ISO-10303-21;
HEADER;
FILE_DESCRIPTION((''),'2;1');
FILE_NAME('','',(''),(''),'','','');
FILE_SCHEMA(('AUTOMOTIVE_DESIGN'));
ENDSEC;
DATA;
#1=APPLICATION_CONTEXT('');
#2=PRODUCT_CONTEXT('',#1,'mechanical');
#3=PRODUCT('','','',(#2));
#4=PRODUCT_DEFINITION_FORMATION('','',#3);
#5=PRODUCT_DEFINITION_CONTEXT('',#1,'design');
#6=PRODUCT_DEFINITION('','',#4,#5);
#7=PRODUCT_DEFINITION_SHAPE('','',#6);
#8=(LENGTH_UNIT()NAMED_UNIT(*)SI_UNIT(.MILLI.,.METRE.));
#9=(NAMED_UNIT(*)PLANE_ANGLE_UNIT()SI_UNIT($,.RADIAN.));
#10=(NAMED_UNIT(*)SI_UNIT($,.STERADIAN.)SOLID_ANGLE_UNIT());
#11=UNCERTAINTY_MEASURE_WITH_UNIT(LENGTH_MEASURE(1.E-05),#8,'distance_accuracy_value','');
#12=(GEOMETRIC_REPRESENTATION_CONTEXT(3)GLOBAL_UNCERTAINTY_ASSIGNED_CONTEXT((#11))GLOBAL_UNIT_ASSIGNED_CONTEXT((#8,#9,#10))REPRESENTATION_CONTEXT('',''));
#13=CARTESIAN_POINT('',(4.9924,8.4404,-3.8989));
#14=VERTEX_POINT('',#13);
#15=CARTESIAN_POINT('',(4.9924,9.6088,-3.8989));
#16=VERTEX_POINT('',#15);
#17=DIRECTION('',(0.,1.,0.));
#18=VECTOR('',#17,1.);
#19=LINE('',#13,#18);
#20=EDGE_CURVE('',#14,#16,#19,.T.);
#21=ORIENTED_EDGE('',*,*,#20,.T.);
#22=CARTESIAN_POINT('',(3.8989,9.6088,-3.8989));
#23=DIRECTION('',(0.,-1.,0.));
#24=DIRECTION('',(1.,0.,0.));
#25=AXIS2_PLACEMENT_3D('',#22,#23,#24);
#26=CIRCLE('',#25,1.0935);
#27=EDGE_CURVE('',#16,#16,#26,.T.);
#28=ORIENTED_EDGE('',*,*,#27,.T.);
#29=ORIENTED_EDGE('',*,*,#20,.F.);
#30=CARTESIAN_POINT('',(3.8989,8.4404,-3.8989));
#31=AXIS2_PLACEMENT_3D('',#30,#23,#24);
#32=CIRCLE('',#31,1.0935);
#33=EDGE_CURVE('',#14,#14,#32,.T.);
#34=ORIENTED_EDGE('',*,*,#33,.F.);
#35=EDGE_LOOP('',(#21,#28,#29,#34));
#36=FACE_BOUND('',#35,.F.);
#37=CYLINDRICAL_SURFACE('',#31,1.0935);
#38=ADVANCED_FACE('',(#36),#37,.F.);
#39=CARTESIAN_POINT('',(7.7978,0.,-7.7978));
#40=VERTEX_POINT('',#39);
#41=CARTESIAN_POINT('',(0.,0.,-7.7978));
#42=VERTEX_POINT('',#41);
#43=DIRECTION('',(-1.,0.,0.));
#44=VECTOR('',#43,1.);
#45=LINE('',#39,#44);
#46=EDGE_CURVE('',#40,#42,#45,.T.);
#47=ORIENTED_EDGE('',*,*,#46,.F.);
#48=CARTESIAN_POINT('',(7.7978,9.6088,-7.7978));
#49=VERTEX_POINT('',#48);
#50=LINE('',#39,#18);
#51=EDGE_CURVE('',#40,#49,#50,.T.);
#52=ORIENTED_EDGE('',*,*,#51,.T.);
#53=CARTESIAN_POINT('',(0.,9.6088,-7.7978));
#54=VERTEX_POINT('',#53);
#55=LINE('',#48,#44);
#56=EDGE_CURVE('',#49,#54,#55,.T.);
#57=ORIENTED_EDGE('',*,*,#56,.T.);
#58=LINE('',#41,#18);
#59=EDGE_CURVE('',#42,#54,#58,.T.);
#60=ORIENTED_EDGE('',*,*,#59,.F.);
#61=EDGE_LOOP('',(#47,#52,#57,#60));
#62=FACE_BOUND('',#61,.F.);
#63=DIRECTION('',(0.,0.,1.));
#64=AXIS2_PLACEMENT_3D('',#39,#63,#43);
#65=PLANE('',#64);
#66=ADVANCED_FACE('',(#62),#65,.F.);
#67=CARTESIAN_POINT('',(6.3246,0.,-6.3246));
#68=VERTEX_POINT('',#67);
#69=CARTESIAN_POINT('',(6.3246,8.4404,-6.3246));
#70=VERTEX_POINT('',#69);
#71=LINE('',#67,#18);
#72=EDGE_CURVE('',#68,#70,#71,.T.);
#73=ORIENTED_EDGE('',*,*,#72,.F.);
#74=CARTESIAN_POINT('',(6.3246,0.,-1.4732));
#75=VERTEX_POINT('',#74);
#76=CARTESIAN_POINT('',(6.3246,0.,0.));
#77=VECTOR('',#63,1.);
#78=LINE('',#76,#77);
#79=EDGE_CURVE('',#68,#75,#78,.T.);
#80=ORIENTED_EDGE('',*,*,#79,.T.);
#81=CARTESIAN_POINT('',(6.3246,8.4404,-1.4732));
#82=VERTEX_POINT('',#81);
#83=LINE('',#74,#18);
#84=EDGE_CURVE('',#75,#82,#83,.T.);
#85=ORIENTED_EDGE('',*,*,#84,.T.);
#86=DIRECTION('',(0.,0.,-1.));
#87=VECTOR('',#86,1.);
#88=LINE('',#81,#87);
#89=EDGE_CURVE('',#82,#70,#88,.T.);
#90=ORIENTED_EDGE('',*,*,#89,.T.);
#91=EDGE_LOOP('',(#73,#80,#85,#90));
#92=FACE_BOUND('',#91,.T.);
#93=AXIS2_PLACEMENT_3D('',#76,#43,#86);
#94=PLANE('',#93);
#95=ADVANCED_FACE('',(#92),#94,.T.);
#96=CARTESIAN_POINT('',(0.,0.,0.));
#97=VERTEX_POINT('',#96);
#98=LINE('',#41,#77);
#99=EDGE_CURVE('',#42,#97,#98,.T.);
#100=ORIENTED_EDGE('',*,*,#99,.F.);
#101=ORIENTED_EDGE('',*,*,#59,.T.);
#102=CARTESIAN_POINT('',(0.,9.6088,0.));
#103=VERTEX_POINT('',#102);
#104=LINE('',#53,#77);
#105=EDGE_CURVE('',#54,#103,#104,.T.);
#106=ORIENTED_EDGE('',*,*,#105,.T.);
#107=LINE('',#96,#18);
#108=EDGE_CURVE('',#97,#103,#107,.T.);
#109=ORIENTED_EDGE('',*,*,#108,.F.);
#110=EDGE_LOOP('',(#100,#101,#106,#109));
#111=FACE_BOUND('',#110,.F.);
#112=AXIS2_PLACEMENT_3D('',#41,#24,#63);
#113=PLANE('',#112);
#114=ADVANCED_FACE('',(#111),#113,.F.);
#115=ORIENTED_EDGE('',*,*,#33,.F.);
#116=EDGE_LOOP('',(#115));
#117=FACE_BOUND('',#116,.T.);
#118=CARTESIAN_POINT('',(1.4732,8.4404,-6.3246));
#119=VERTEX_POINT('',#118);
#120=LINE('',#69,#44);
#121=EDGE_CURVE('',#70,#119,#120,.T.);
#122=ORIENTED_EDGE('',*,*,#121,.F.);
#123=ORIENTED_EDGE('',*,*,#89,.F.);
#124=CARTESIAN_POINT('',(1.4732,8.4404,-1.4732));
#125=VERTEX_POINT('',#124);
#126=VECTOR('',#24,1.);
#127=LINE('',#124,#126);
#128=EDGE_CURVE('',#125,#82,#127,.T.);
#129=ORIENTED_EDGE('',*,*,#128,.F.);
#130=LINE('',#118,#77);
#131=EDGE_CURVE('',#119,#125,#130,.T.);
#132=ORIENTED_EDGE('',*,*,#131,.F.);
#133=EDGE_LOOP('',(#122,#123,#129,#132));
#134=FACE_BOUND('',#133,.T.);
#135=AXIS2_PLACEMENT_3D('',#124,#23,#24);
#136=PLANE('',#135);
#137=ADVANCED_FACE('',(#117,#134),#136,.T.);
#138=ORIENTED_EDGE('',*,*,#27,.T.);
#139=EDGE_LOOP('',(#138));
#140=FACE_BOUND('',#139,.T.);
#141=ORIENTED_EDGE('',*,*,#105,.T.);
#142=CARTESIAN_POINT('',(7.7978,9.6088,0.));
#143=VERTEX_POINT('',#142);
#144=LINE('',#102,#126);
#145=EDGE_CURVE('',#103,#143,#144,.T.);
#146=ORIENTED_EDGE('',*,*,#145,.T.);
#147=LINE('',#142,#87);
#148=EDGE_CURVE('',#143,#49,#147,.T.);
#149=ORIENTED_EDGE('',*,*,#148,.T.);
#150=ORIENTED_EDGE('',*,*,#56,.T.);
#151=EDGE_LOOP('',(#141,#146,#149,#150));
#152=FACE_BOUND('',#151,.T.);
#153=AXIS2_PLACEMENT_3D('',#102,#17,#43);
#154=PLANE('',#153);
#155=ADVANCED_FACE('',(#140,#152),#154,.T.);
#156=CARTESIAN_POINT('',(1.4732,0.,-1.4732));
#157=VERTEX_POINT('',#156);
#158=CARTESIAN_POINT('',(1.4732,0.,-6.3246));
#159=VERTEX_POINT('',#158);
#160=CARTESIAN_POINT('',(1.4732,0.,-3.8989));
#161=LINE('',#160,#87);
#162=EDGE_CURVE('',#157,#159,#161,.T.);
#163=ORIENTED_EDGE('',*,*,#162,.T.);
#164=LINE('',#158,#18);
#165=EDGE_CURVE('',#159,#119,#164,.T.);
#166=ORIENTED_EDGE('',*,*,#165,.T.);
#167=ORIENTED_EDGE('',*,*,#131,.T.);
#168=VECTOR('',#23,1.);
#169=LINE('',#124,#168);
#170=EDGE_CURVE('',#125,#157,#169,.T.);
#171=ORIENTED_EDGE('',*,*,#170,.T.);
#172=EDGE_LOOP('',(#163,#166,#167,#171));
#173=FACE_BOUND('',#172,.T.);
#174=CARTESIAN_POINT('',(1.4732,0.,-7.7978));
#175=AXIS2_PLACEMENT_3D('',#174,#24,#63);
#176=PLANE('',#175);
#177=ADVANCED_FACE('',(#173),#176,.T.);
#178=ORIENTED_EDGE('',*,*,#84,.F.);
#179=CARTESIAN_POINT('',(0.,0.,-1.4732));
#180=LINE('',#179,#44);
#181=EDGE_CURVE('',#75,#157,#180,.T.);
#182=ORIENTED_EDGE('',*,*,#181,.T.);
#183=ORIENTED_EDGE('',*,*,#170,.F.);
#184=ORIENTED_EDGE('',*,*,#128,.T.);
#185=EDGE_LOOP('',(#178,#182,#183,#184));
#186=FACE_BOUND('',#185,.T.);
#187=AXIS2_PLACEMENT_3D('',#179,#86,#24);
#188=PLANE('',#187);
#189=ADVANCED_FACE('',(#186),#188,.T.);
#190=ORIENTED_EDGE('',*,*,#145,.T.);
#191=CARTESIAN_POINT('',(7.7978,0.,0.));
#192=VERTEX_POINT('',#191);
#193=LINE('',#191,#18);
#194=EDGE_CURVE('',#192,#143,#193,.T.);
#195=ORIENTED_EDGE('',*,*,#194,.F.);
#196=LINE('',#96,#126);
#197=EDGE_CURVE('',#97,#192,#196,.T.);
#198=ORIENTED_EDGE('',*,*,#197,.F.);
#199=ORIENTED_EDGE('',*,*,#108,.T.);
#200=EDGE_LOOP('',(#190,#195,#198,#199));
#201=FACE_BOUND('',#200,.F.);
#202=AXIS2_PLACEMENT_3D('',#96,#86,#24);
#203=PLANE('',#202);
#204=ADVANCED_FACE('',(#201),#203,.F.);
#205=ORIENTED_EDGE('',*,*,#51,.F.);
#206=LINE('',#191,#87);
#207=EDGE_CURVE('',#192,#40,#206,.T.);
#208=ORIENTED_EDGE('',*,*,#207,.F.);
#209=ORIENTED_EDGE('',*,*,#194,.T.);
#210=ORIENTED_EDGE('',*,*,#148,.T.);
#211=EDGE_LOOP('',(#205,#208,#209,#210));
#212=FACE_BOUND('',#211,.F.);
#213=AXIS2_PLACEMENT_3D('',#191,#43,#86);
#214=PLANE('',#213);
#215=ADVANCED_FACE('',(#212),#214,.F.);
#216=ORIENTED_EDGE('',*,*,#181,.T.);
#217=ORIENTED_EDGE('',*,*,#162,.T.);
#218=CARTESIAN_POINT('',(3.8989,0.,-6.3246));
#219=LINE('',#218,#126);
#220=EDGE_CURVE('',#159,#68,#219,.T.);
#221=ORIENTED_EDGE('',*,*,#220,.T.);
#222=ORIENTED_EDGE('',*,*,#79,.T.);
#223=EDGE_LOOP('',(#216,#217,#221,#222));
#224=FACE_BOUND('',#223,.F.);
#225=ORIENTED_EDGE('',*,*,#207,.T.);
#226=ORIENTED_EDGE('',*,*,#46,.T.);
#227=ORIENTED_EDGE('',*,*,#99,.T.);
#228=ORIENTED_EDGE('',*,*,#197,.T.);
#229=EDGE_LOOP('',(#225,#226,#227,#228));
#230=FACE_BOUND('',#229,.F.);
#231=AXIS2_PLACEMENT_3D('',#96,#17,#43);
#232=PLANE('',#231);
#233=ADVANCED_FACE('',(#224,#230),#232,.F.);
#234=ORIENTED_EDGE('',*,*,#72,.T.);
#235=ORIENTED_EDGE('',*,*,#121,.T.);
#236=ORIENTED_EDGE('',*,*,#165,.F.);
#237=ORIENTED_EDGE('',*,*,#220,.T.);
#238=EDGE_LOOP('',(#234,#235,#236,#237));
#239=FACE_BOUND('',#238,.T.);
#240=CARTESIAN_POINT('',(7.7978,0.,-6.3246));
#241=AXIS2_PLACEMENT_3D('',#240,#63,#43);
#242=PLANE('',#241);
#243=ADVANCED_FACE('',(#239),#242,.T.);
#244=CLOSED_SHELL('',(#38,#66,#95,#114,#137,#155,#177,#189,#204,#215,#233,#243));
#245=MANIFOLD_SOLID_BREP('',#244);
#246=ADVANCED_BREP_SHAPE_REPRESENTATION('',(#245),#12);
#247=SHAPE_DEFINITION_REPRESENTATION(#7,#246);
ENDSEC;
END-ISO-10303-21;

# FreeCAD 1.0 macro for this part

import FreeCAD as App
import Part
import Sketcher
from FreeCAD import Vector
Q = App.Units.Quantity


def faces_at(feature, points):
    """Names of the faces that lie closest to the given points."""
    faces = feature.Shape.Faces
    near = lambda p: min(range(len(faces)), key=lambda i: faces[i].distToShape(Part.Vertex(*p))[0])
    return sorted({f"Face{near(p) + 1}" for p in points})

doc = App.newDocument("Part")
body = doc.addObject("PartDesign::Body", "Body")

sketch1 = body.newObject("Sketcher::SketchObject", "Sketch")
sketch1.AttachmentSupport = (doc.getObject("XZ_Plane"), [""])
sketch1.MapMode = "FlatFace"
sketch1.addGeometry([
    Part.LineSegment(Vector(0, -8, 0), Vector(0, 0, 0)),
    Part.LineSegment(Vector(0, 0, 0), Vector(8, 0, 0)),
    Part.LineSegment(Vector(8, 0, 0), Vector(8, -8, 0)),
    Part.LineSegment(Vector(8, -8, 0), Vector(0, -8, 0)),
], False)
sketch1.addConstraint([
    Sketcher.Constraint("Coincident", 0, 2, 1, 1),
    Sketcher.Constraint("Coincident", 1, 2, 2, 1),
    Sketcher.Constraint("Coincident", 2, 2, 3, 1),
    Sketcher.Constraint("Coincident", 3, 2, 0, 1),
    Sketcher.Constraint("Vertical", 0),
    Sketcher.Constraint("Horizontal", 1),
    Sketcher.Constraint("Vertical", 2),
    Sketcher.Constraint("Horizontal", 3),
    Sketcher.Constraint("Coincident", 0, 2, -1, 1),
    Sketcher.Constraint("Equal", 3, 0),
    Sketcher.Constraint("DistanceX", 1, 1, 1, 2, Q("0.307 in")),
])
pad1 = body.newObject("PartDesign::Pad", "Pad")
pad1.Profile = sketch1
pad1.Length = Q("0.3782992 in")
pad1.Reversed = True
doc.recompute()

thickness = body.newObject("PartDesign::Thickness", "Thickness")
thickness.Base = (pad1, faces_at(pad1, [(5.199, 0, -2.599)]))
thickness.Value = Q("0.058 in")
thickness.Reversed = True
thickness.Join = "Intersection"

sketch2 = body.newObject("Sketcher::SketchObject", "Sketch001")
sketch2.AttachmentSupport = (doc.getObject("XZ_Plane"), [""])
sketch2.MapMode = "FlatFace"
sketch2.AttachmentOffset = App.Placement(Vector(0, 0, -0.3202992 * 25.4), App.Rotation())
sketch2.addGeometry([
    Part.LineSegment(Vector(1.5, -1.5, 0), Vector(1.5, -6.3, 0)),
    Part.LineSegment(Vector(1.5, -6.3, 0), Vector(6.3, -6.3, 0)),
    Part.LineSegment(Vector(6.3, -6.3, 0), Vector(6.3, -1.5, 0)),
    Part.LineSegment(Vector(6.3, -1.5, 0), Vector(1.5, -1.5, 0)),
], False)
sketch2.addConstraint([
    Sketcher.Constraint("Coincident", 0, 2, 1, 1),
    Sketcher.Constraint("Coincident", 1, 2, 2, 1),
    Sketcher.Constraint("Coincident", 2, 2, 3, 1),
    Sketcher.Constraint("Coincident", 3, 2, 0, 1),
    Sketcher.Constraint("Vertical", 0),
    Sketcher.Constraint("Horizontal", 1),
    Sketcher.Constraint("Vertical", 2),
    Sketcher.Constraint("Horizontal", 3),
    Sketcher.Constraint("Equal", 3, 0),
    Sketcher.Constraint("DistanceX", 1, 1, 1, 2, Q("0.191 in")),
    Sketcher.Constraint("DistanceX", -1, 1, 0, 2, Q("0.058 in")),
    Sketcher.Constraint("DistanceY", 0, 2, -1, 1, Q("0.249 in")),
])
pocket1 = body.newObject("PartDesign::Pocket", "Pocket")
pocket1.Profile = sketch2
pocket1.Length = Q("0.012 in")

sketch3 = body.newObject("Sketcher::SketchObject", "Sketch002")
sketch3.AttachmentSupport = (doc.getObject("XZ_Plane"), [""])
sketch3.MapMode = "FlatFace"
sketch3.AttachmentOffset = App.Placement(Vector(0, 0, -0.3322992 * 25.4), App.Rotation())
sketch3.addGeometry(Part.Circle(Vector(3.9, -3.9, 0), Vector(0, 0, 1), 1.1), False)
sketch3.addConstraint([
    Sketcher.Constraint("Diameter", 0, Q("0.0861 in")),
    Sketcher.Constraint("DistanceX", -1, 1, 0, 3, Q("0.1535 in")),
    Sketcher.Constraint("DistanceY", 0, 3, -1, 1, Q("0.1535 in")),
])
pocket2 = body.newObject("PartDesign::Pocket", "Pocket001")
pocket2.Profile = sketch3
pocket2.Length = Q("0.05 in")

doc.recompute()
